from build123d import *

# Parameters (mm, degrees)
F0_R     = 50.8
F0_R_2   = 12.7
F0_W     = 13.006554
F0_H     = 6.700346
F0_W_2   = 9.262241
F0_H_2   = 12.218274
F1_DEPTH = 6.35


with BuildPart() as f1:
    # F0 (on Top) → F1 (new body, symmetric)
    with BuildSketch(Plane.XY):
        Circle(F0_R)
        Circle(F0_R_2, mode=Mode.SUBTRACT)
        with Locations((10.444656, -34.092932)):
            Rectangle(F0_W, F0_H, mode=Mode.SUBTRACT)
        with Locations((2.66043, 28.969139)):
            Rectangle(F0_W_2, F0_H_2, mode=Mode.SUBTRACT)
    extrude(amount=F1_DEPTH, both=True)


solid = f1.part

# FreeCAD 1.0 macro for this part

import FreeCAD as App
import Part
import Sketcher
Q = App.Units.Quantity

doc = App.newDocument("Part")
body = doc.addObject("PartDesign::Body", "Body")

# Sketch on XY plane
sketch1 = body.newObject("Sketcher::SketchObject", "Sketch")
sketch1.AttachmentSupport = (doc.getObject("XY_Plane"), [""])
sketch1.MapMode = "FlatFace"
sketch1.addGeometry(Part.Circle(App.Vector(0, 0, 0), App.Vector(0, 0, 1), 51), False)
sketch1.addGeometry(Part.LineSegment(App.Vector(17, -37, 0), App.Vector(4, -37, 0)), False)
sketch1.addGeometry(Part.LineSegment(App.Vector(4, -37, 0), App.Vector(4, -31, 0)), False)
sketch1.addGeometry(Part.LineSegment(App.Vector(4, -31, 0), App.Vector(17, -31, 0)), False)
sketch1.addGeometry(Part.LineSegment(App.Vector(17, -31, 0), App.Vector(17, -37, 0)), False)
sketch1.addGeometry(Part.Circle(App.Vector(0, 0, 0), App.Vector(0, 0, 1), 13), False)
sketch1.addGeometry(Part.LineSegment(App.Vector(7, 23, 0), App.Vector(-2, 23, 0)), False)
sketch1.addGeometry(Part.LineSegment(App.Vector(-2, 23, 0), App.Vector(-2, 35, 0)), False)
sketch1.addGeometry(Part.LineSegment(App.Vector(-2, 35, 0), App.Vector(7, 35, 0)), False)
sketch1.addGeometry(Part.LineSegment(App.Vector(7, 35, 0), App.Vector(7, 23, 0)), False)
sketch1.addConstraint(Sketcher.Constraint("Coincident", 1, 2, 2, 1))
sketch1.addConstraint(Sketcher.Constraint("Coincident", 2, 2, 3, 1))
sketch1.addConstraint(Sketcher.Constraint("Coincident", 3, 2, 4, 1))
sketch1.addConstraint(Sketcher.Constraint("Coincident", 4, 2, 1, 1))
sketch1.addConstraint(Sketcher.Constraint("Coincident", 6, 2, 7, 1))
sketch1.addConstraint(Sketcher.Constraint("Coincident", 7, 2, 8, 1))
sketch1.addConstraint(Sketcher.Constraint("Coincident", 8, 2, 9, 1))
sketch1.addConstraint(Sketcher.Constraint("Coincident", 9, 2, 6, 1))
sketch1.addConstraint(Sketcher.Constraint("Horizontal", 1))
sketch1.addConstraint(Sketcher.Constraint("Vertical", 2))
sketch1.addConstraint(Sketcher.Constraint("Horizontal", 3))
sketch1.addConstraint(Sketcher.Constraint("Vertical", 4))
sketch1.addConstraint(Sketcher.Constraint("Horizontal", 6))
sketch1.addConstraint(Sketcher.Constraint("Vertical", 7))
sketch1.addConstraint(Sketcher.Constraint("Horizontal", 8))
sketch1.addConstraint(Sketcher.Constraint("Vertical", 9))
sketch1.addConstraint(Sketcher.Constraint("Coincident", 0, 3, -1, 1))
sketch1.addConstraint(Sketcher.Constraint("Coincident", 5, 3, -1, 1))
sketch1.addConstraint(Sketcher.Constraint("Diameter", 0, Q("4 in")))
sketch1.addConstraint(Sketcher.Constraint("Diameter", 5, Q("1 in")))
sketch1.addConstraint(Sketcher.Constraint("DistanceY", -1, 1, 6, 2, Q("0.9000001 in")))
sketch1.addConstraint(Sketcher.Constraint("DistanceX", 6, 2, 6, 1, 9.262241))
sketch1.addConstraint(Sketcher.Constraint("DistanceX", 1, 2, 1, 1, 13.006554))
sketch1.addConstraint(Sketcher.Constraint("DistanceY", 2, 1, 2, 2, 6.700346))
sketch1.addConstraint(Sketcher.Constraint("DistanceY", 7, 1, 7, 2, 12.218274))
sketch1.addConstraint(Sketcher.Constraint("DistanceX", -1, 1, 1, 2, 3.941379))
sketch1.addConstraint(Sketcher.Constraint("DistanceY", 2, 2, -1, 1, 30.742759))
sketch1.addConstraint(Sketcher.Constraint("DistanceX", 6, 2, -1, 1, 1.97069))
pad1 = body.newObject("PartDesign::Pad", "Pad")
pad1.Profile = sketch1
pad1.Length = Q("0.5 in")
pad1.Midplane = True

doc.recompute()
